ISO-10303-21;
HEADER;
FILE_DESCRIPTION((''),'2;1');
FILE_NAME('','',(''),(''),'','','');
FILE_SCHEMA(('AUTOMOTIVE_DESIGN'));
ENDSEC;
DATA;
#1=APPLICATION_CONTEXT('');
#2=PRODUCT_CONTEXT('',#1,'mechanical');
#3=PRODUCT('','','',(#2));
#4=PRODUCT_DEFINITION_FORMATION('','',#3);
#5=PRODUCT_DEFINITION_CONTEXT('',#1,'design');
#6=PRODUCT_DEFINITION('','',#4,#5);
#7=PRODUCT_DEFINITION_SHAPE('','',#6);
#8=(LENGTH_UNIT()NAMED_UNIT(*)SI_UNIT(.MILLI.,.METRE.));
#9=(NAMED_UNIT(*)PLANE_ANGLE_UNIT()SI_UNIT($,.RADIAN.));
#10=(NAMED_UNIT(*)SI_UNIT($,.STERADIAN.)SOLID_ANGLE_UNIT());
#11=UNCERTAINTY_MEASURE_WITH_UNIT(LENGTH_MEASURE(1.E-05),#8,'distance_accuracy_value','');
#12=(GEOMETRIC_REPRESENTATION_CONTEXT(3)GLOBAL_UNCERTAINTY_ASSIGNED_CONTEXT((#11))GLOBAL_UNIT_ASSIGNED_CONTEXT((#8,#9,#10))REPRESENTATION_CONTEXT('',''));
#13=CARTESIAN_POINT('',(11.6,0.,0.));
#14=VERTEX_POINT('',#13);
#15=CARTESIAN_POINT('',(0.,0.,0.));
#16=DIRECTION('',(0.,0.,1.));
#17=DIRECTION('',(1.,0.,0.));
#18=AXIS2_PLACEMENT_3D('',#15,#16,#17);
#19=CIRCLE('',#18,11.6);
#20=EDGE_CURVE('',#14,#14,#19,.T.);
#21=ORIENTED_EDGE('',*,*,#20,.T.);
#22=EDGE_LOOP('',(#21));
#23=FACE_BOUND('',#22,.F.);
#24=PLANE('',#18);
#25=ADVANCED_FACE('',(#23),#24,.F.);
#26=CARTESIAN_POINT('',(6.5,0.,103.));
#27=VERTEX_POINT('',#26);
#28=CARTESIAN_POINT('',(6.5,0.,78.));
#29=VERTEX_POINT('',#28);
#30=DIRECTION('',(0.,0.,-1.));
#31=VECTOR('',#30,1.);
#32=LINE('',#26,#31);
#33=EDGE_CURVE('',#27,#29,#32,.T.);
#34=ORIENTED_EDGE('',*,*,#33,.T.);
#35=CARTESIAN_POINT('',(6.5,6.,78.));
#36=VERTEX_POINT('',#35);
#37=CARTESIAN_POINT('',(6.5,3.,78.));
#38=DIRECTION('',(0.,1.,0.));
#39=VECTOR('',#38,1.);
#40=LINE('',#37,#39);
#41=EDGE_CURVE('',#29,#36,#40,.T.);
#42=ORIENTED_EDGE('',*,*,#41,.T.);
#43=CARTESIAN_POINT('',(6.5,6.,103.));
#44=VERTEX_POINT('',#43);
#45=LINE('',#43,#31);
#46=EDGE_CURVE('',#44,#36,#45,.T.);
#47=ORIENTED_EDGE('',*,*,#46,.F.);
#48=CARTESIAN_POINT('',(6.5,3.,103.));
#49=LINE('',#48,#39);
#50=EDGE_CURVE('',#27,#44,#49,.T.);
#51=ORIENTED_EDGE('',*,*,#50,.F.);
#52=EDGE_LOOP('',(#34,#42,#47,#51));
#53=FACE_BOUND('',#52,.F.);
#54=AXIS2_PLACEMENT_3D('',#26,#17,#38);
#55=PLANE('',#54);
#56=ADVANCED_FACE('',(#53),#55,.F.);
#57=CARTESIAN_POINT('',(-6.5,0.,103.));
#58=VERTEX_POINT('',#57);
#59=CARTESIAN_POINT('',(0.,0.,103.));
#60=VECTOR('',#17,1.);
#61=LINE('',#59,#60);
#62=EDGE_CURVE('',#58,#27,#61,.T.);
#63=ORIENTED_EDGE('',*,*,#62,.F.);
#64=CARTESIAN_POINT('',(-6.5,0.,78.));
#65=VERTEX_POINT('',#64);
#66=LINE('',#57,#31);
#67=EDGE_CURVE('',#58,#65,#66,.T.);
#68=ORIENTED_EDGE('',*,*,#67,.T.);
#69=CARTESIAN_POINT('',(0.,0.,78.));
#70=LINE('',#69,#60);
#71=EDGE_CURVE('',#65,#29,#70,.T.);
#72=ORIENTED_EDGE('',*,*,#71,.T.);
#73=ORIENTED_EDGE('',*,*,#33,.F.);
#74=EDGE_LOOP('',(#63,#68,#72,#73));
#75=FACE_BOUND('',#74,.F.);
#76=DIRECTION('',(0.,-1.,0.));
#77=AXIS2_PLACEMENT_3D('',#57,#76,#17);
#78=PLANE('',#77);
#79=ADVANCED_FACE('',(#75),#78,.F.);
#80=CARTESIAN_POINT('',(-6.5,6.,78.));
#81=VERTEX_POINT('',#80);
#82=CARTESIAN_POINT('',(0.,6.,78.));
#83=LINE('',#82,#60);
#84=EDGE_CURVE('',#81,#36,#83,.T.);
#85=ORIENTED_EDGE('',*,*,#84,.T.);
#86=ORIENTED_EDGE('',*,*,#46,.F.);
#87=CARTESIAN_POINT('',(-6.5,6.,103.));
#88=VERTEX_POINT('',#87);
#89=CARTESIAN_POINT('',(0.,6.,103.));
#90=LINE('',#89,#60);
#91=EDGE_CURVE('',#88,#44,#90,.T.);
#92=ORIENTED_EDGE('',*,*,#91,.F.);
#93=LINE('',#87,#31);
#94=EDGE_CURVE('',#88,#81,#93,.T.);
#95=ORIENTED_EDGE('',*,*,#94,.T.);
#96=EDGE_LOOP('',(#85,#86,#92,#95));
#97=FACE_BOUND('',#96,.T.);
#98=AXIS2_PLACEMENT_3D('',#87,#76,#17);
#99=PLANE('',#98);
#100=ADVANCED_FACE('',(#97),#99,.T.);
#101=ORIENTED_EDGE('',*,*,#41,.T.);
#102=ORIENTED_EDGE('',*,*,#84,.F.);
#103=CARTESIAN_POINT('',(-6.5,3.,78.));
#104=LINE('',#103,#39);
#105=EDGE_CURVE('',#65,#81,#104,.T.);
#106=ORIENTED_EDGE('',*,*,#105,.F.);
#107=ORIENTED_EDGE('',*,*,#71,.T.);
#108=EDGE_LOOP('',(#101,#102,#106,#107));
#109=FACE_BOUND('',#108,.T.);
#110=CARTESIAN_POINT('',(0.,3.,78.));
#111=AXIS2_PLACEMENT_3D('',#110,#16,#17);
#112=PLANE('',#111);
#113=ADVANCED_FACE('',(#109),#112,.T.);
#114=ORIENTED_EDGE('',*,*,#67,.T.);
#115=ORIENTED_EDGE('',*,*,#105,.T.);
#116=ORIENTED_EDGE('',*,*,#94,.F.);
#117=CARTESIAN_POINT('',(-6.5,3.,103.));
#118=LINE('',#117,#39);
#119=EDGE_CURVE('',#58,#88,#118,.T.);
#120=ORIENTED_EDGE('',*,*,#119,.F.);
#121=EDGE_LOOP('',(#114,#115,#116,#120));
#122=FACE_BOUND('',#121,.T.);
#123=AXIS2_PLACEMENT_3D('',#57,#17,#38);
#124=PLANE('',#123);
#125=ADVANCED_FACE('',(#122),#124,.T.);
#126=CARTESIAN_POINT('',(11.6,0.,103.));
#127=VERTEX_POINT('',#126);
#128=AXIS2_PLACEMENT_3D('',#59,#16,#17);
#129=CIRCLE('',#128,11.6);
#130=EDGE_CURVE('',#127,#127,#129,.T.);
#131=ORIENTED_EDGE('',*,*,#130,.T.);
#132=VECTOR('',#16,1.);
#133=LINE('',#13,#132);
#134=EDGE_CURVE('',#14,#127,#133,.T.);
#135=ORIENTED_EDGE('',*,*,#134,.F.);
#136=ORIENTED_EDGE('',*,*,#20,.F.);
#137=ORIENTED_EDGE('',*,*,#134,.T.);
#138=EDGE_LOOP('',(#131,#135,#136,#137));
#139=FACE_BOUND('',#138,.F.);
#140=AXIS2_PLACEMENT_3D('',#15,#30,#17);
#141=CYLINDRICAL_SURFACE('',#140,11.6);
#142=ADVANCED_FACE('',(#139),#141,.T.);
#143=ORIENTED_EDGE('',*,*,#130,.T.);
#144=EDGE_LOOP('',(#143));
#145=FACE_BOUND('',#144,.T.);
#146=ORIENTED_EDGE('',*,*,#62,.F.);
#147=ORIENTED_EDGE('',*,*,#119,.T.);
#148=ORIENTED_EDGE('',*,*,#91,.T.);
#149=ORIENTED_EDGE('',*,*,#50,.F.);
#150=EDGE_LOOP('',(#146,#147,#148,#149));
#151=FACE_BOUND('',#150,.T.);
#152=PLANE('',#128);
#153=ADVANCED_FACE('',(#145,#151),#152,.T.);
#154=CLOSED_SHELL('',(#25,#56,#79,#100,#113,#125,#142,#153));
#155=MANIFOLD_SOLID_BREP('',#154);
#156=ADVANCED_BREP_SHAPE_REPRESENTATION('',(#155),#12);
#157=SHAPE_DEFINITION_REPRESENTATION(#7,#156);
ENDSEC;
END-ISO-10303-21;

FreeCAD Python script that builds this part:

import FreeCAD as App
import Part
import Sketcher
Q = App.Units.Quantity

doc = App.newDocument("Part")
body = doc.addObject("PartDesign::Body", "Body")

# Sketch on XY plane
sketch1 = body.newObject("Sketcher::SketchObject", "Sketch")
sketch1.AttachmentSupport = (doc.getObject("XY_Plane"), [""])
sketch1.MapMode = "FlatFace"
sketch1.addGeometry(Part.Circle(App.Vector(0, 0, 0), App.Vector(0, 0, 1), 12), False)
sketch1.addConstraint([
    Sketcher.Constraint("Coincident", 0, 3, -1, 1),
    Sketcher.Constraint("Diameter", 0, Q("23.2 mm")),
])
pad1 = body.newObject("PartDesign::Pad", "Pad")
pad1.Profile = sketch1
pad1.Length = 103

# Sketch on XY plane
sketch2 = body.newObject("Sketcher::SketchObject", "Sketch001")
sketch2.AttachmentSupport = (doc.getObject("XY_Plane"), [""])
sketch2.MapMode = "FlatFace"
sketch2.AttachmentOffset = App.Placement(App.Vector(0, 0, 103), App.Rotation())
sketch2.addGeometry([
    Part.LineSegment(App.Vector(-6, 6, 0), App.Vector(-6, 0, 0)),
    Part.LineSegment(App.Vector(-6, 0, 0), App.Vector(6, 0, 0)),
    Part.LineSegment(App.Vector(6, 0, 0), App.Vector(6, 6, 0)),
    Part.LineSegment(App.Vector(6, 6, 0), App.Vector(-6, 6, 0)),
], False)
sketch2.addConstraint([
    Sketcher.Constraint("Coincident", 0, 2, 1, 1),
    Sketcher.Constraint("Coincident", 1, 2, 2, 1),
    Sketcher.Constraint("Coincident", 2, 2, 3, 1),
    Sketcher.Constraint("Coincident", 3, 2, 0, 1),
    Sketcher.Constraint("Vertical", 0),
    Sketcher.Constraint("Horizontal", 1),
    Sketcher.Constraint("Vertical", 2),
    Sketcher.Constraint("Horizontal", 3),
    Sketcher.Constraint("Symmetric", 0, 2, 1, 2, -1, 1),
    Sketcher.Constraint("DistanceX", 1, 1, 1, 2, Q("13 mm")),
    Sketcher.Constraint("DistanceY", 0, 2, 0, 1, Q("6 mm")),
])
pocket1 = body.newObject("PartDesign::Pocket", "Pocket")
pocket1.Profile = sketch2
pocket1.Length = 25

doc.recompute()
